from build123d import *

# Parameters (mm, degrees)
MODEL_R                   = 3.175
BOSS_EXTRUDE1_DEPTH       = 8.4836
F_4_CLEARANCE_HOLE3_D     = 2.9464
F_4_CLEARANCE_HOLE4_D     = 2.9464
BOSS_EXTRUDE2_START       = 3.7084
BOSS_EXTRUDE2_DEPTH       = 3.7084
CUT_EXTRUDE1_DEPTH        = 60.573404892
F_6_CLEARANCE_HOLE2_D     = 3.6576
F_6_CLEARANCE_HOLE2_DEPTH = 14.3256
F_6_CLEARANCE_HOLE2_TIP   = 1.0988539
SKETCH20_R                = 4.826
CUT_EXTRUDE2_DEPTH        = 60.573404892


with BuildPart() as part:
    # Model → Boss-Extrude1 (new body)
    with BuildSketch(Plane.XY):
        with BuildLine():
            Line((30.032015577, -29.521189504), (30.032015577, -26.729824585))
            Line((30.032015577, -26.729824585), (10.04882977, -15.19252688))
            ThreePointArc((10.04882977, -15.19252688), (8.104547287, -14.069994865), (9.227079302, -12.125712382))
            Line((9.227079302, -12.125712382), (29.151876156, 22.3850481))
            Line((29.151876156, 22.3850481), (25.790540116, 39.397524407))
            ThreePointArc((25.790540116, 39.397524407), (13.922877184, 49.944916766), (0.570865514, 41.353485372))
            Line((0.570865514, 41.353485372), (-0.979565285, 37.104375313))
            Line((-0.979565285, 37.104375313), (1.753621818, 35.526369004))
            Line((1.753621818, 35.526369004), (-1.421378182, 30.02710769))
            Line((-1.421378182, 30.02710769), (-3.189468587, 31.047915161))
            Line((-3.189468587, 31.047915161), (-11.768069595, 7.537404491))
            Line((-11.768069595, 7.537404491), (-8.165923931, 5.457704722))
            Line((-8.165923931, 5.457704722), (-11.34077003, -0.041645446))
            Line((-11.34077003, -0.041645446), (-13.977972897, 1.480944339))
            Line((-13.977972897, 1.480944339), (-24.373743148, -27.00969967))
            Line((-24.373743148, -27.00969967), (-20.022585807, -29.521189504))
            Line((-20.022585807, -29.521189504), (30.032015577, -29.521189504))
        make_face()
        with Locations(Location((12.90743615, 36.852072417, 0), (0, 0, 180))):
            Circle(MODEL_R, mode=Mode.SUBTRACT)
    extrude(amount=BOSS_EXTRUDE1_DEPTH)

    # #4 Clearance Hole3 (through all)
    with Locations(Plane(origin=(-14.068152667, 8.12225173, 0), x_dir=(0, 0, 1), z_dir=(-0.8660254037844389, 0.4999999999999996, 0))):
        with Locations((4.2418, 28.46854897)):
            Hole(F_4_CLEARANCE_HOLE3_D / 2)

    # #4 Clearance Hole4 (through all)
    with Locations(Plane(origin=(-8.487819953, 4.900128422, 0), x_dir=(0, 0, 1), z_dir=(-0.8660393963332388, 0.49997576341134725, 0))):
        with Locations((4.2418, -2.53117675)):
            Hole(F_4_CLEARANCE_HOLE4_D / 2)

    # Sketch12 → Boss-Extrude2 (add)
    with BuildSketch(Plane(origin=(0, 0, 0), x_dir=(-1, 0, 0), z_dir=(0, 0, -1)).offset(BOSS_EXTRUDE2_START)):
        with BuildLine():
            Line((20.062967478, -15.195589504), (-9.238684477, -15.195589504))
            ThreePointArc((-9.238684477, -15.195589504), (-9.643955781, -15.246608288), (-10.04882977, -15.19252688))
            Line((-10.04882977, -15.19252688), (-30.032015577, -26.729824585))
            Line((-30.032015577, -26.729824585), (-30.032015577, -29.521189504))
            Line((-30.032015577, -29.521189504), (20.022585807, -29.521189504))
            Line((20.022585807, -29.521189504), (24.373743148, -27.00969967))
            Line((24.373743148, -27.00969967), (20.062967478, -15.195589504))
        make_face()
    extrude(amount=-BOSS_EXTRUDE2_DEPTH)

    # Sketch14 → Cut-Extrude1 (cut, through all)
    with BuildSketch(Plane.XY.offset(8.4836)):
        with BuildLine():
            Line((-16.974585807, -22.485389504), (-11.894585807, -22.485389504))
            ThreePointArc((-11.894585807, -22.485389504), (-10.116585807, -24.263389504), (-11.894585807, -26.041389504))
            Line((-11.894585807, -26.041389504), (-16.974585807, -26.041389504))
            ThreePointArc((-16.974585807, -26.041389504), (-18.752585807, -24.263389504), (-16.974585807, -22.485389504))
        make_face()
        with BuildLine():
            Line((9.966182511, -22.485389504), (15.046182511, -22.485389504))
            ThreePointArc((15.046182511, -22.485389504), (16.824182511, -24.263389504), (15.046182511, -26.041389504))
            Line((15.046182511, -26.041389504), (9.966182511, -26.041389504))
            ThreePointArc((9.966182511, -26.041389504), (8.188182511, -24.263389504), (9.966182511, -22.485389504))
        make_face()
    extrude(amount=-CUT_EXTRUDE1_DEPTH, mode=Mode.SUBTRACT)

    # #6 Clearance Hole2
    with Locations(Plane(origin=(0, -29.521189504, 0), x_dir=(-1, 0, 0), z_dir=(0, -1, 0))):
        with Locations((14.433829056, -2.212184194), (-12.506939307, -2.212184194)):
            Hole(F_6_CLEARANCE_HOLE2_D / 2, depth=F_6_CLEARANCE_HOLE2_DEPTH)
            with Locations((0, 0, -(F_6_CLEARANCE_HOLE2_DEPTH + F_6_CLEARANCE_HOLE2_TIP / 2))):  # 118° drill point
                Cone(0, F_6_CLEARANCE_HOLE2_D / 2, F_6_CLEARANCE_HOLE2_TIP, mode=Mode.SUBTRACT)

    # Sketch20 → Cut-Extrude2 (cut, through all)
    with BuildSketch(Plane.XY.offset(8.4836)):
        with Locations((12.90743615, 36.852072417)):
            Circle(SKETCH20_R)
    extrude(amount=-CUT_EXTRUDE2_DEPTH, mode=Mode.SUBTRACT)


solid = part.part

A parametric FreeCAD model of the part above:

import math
import FreeCAD as App
import Part
import Sketcher
from FreeCAD import Vector
Q = App.Units.Quantity

doc = App.newDocument("Part")
body = doc.addObject("PartDesign::Body", "Body")

# Sketch on XY plane
sketch1 = body.newObject("Sketcher::SketchObject", "Sketch")
sketch1.AttachmentSupport = (doc.getObject("XY_Plane"), [""])
sketch1.MapMode = "FlatFace"
sketch1.addGeometry(Part.LineSegment(Vector(30.032016, -29.52119, 0), Vector(30.032016, -26.729825, 0)), False)
sketch1.addGeometry(Part.LineSegment(Vector(30.032016, -26.729825, 0), Vector(10.04883, -15.192527, 0)), False)
sketch1.addGeometry(Part.ArcOfCircle(Part.Circle(Vector(9.637955, -13.65912, 0), Vector(0, 0, 1), 1.5875), math.radians(105), math.radians(285)), False)
sketch1.addGeometry(Part.LineSegment(Vector(9.227079, -12.125712, 0), Vector(29.151876, 22.385048, 0)), False)
sketch1.addGeometry(Part.LineSegment(Vector(29.151876, 22.385048, 0), Vector(25.79054, 39.397524, 0)), False)
sketch1.addGeometry(Part.ArcOfCircle(Part.Circle(Vector(12.907436, 36.852072, 0), Vector(0, 0, 1), 13.132163), math.radians(11.176583), math.radians(159.953801)), False)
sketch1.addGeometry(Part.LineSegment(Vector(0.570866, 41.353485, 0), Vector(-0.979565, 37.104375, 0)), False)
sketch1.addGeometry(Part.LineSegment(Vector(-0.979565, 37.104375, 0), Vector(1.753622, 35.526369, 0)), False)
sketch1.addGeometry(Part.LineSegment(Vector(1.753622, 35.526369, 0), Vector(-1.421378, 30.027108, 0)), False)
sketch1.addGeometry(Part.LineSegment(Vector(-1.421378, 30.027108, 0), Vector(-3.189469, 31.047915, 0)), False)
sketch1.addGeometry(Part.LineSegment(Vector(-3.189469, 31.047915, 0), Vector(-11.76807, 7.537404, 0)), False)
sketch1.addGeometry(Part.LineSegment(Vector(-11.76807, 7.537404, 0), Vector(-8.165924, 5.457705, 0)), False)
sketch1.addGeometry(Part.LineSegment(Vector(-8.165924, 5.457705, 0), Vector(-11.34077, -0.041645, 0)), False)
sketch1.addGeometry(Part.LineSegment(Vector(-11.34077, -0.041645, 0), Vector(-13.977973, 1.480944, 0)), False)
sketch1.addGeometry(Part.LineSegment(Vector(-13.977973, 1.480944, 0), Vector(-24.373743, -27.0097, 0)), False)
sketch1.addGeometry(Part.LineSegment(Vector(-24.373743, -27.0097, 0), Vector(-20.022586, -29.52119, 0)), False)
sketch1.addGeometry(Part.LineSegment(Vector(-20.022586, -29.52119, 0), Vector(30.032016, -29.52119, 0)), False)
sketch1.addGeometry(Part.Circle(Vector(12.907436, 36.852072, 0), Vector(0, 0, 1), 3.175), False)
sketch1.addConstraint(Sketcher.Constraint("Coincident", 0, 2, 1, 1))
sketch1.addConstraint(Sketcher.Constraint("Coincident", 1, 2, 2, 2))
sketch1.addConstraint(Sketcher.Constraint("Coincident", 2, 1, 3, 1))
sketch1.addConstraint(Sketcher.Constraint("Coincident", 3, 2, 4, 1))
sketch1.addConstraint(Sketcher.Constraint("Tangent", 4, 2, 5, 1))
sketch1.addConstraint(Sketcher.Constraint("Tangent", 5, 2, 6, 1))
sketch1.addConstraint(Sketcher.Constraint("Coincident", 6, 2, 7, 1))
sketch1.addConstraint(Sketcher.Constraint("Coincident", 7, 2, 8, 1))
sketch1.addConstraint(Sketcher.Constraint("Coincident", 8, 2, 9, 1))
sketch1.addConstraint(Sketcher.Constraint("Coincident", 9, 2, 10, 1))
sketch1.addConstraint(Sketcher.Constraint("Coincident", 10, 2, 11, 1))
sketch1.addConstraint(Sketcher.Constraint("Coincident", 11, 2, 12, 1))
sketch1.addConstraint(Sketcher.Constraint("Coincident", 12, 2, 13, 1))
sketch1.addConstraint(Sketcher.Constraint("Coincident", 13, 2, 14, 1))
sketch1.addConstraint(Sketcher.Constraint("Coincident", 14, 2, 15, 1))
sketch1.addConstraint(Sketcher.Constraint("Coincident", 15, 2, 16, 1))
sketch1.addConstraint(Sketcher.Constraint("Coincident", 16, 2, 0, 1))
sketch1.addConstraint(Sketcher.Constraint("Vertical", 0))
sketch1.addConstraint(Sketcher.Constraint("Horizontal", 16))
sketch1.addConstraint(Sketcher.Constraint("Coincident", 17, 3, 5, 3))
sketch1.addConstraint(Sketcher.Constraint("Perpendicular", 1, 3))
sketch1.addConstraint(Sketcher.Constraint("Perpendicular", 3, 7))
sketch1.addConstraint(Sketcher.Constraint("Perpendicular", 7, 8))
sketch1.addConstraint(Sketcher.Constraint("Perpendicular", 8, 9))
sketch1.addConstraint(Sketcher.Constraint("Parallel", 6, 10))
sketch1.addConstraint(Sketcher.Constraint("Parallel", 9, 11))
sketch1.addConstraint(Sketcher.Constraint("Parallel", 11, 13))
sketch1.addConstraint(Sketcher.Constraint("Parallel", 10, 14))
sketch1.addConstraint(Sketcher.Constraint("Equal", 8, 12))
sketch1.addConstraint(Sketcher.Constraint("Diameter", 17, Q("0.25 in")))
sketch1.addConstraint(Sketcher.Constraint("Angle", 1, Q("150 deg")))
sketch1.addConstraint(Sketcher.Constraint("Radius", 2, Q("0.0625 in")))
sketch1.addConstraint(Sketcher.Constraint("Distance", 8, Q("0.25 in")))
sketch1.addConstraint(Sketcher.Constraint("DistanceY", 1, 2, 5, 3, Q("2.049 in")))
sketch1.addConstraint(Sketcher.Constraint("DistanceX", 16, 1, 16, 2, 50.054601))
sketch1.addConstraint(Sketcher.Constraint("Radius", 5, 13.132163))
sketch1.addConstraint(Sketcher.Constraint("Distance", 11, 4.1594))
sketch1.addConstraint(Sketcher.Constraint("DistanceY", 14, 2, -1, 1, 27.0097))
sketch1.addConstraint(Sketcher.Constraint("DistanceX", 6, 2, 5, 3, 13.887001))
sketch1.addConstraint(Sketcher.Constraint("DistanceX", 10, 2, 9, 2, 8.578601))
sketch1.addConstraint(Sketcher.Constraint("DistanceX", 10, 2, 12, 2, 0.4273))
sketch1.addConstraint(Sketcher.Constraint("DistanceX", 12, 2, 1, 2, 21.3896))
sketch1.addConstraint(Sketcher.Constraint("Distance", 13, 3.04518))
sketch1.addConstraint(Sketcher.Constraint("Distance", 14, 30.328021))
sketch1.addConstraint(Sketcher.Constraint("DistanceY", 0, 1, 0, 2, 2.791365))
sketch1.addConstraint(Sketcher.Constraint("DistanceY", 2, 3, -1, 1, 13.65912))
sketch1.addConstraint(Sketcher.Constraint("DistanceX", -1, 1, 1, 2, 10.04883))
sketch1.addConstraint(Sketcher.Constraint("DistanceX", -1, 1, 2, 1, 9.227079))
sketch1.addConstraint(Sketcher.Constraint("DistanceY", -1, 1, 3, 2, 22.385048))
sketch1.addConstraint(Sketcher.Constraint("DistanceX", -1, 1, 4, 2, 25.79054))
sketch1.addConstraint(Sketcher.Constraint("DistanceX", -1, 1, 7, 2, 1.753622))
sketch1.addConstraint(Sketcher.Constraint("DistanceY", -1, 1, 7, 2, 35.526369))
sketch1.addConstraint(Sketcher.Constraint("DistanceY", 15, 2, -1, 1, 29.52119))
pad1 = body.newObject("PartDesign::Pad", "Pad")
pad1.Profile = sketch1
pad1.Length = Q("0.334 in")

# Sketch on an angled plane
sketch2 = body.newObject("Sketcher::SketchObject", "Sketch001")
sketch2.Placement = App.Placement(Vector(-14.068153, 8.122252, 0), App.Rotation(Vector(0, 0, 1), Vector(0.5, 0.866025404, 0), Vector(-0.866025404, 0.5, 0), "ZXY"))
sketch2.addGeometry(Part.Circle(Vector(4.2418, 28.468549, 0), Vector(0, 0, 1), 1.4732), False)
sketch2.addConstraint(Sketcher.Constraint("Diameter", 0, Q("0.116 in")))
sketch2.addConstraint(Sketcher.Constraint("DistanceX", -1, 1, 0, 3, Q("0.167 in")))
sketch2.addConstraint(Sketcher.Constraint("DistanceY", -1, 1, 0, 3, 28.468549))
doc.recompute()
hole = body.newObject("PartDesign::Hole", "Hole")
hole.Profile = sketch2
hole.ThreadType = "None"
hole.Diameter = Q("0.116 in")
hole.DepthType = "ThroughAll"

# Sketch on an angled plane
sketch3 = body.newObject("Sketcher::SketchObject", "Sketch002")
sketch3.Placement = App.Placement(Vector(-8.48782, 4.900128, 0), App.Rotation(Vector(0, 0, 1), Vector(0.499975763, 0.866039396, 0), Vector(-0.866039396, 0.499975763, 0), "ZXY"))
sketch3.addGeometry(Part.Circle(Vector(4.2418, -2.531177, 0), Vector(0, 0, 1), 1.4732), False)
sketch3.addConstraint(Sketcher.Constraint("Diameter", 0, Q("0.116 in")))
sketch3.addConstraint(Sketcher.Constraint("DistanceX", -1, 1, 0, 3, Q("0.167 in")))
sketch3.addConstraint(Sketcher.Constraint("DistanceY", 0, 3, -1, 1, 2.531177))
doc.recompute()
hole2 = body.newObject("PartDesign::Hole", "Hole001")
hole2.Profile = sketch3
hole2.ThreadType = "None"
hole2.Diameter = Q("0.116 in")
hole2.DepthType = "ThroughAll"

# Sketch on XY plane
sketch4 = body.newObject("Sketcher::SketchObject", "Sketch003")
sketch4.AttachmentSupport = (doc.getObject("XY_Plane"), [""])
sketch4.MapMode = "FlatFace"
sketch4.AttachmentOffset = App.Placement(Vector(0, 0, -0.146 * 25.4), App.Rotation())
sketch4.addGeometry(Part.LineSegment(Vector(-20.062967, -15.19559, 0), Vector(9.238684, -15.19559, 0)), False)
sketch4.addGeometry(Part.ArcOfCircle(Part.Circle(Vector(9.637955, -13.65912, 0), Vector(0, 0, 1), 1.5875), math.radians(-104.566807), math.radians(-75)), False)
sketch4.addGeometry(Part.LineSegment(Vector(10.04883, -15.192527, 0), Vector(30.032016, -26.729825, 0)), False)
sketch4.addGeometry(Part.LineSegment(Vector(30.032016, -26.729825, 0), Vector(30.032016, -29.52119, 0)), False)
sketch4.addGeometry(Part.LineSegment(Vector(30.032016, -29.52119, 0), Vector(-20.022586, -29.52119, 0)), False)
sketch4.addGeometry(Part.LineSegment(Vector(-20.022586, -29.52119, 0), Vector(-24.373743, -27.0097, 0)), False)
sketch4.addGeometry(Part.LineSegment(Vector(-24.373743, -27.0097, 0), Vector(-20.062967, -15.19559, 0)), False)
sketch4.addConstraint(Sketcher.Constraint("Coincident", 0, 2, 1, 1))
sketch4.addConstraint(Sketcher.Constraint("Coincident", 1, 2, 2, 1))
sketch4.addConstraint(Sketcher.Constraint("Coincident", 2, 2, 3, 1))
sketch4.addConstraint(Sketcher.Constraint("Coincident", 3, 2, 4, 1))
sketch4.addConstraint(Sketcher.Constraint("Coincident", 4, 2, 5, 1))
sketch4.addConstraint(Sketcher.Constraint("Coincident", 5, 2, 6, 1))
sketch4.addConstraint(Sketcher.Constraint("Coincident", 6, 2, 0, 1))
sketch4.addConstraint(Sketcher.Constraint("Horizontal", 0))
sketch4.addConstraint(Sketcher.Constraint("Vertical", 3))
sketch4.addConstraint(Sketcher.Constraint("Horizontal", 4))
sketch4.addConstraint(Sketcher.Constraint("Angle", 2, Q("-30 deg")))
sketch4.addConstraint(Sketcher.Constraint("Radius", 1, Q("0.0625 in")))
sketch4.addConstraint(Sketcher.Constraint("DistanceY", 3, 2, 0, 2, Q("0.564 in")))
sketch4.addConstraint(Sketcher.Constraint("DistanceX", 4, 2, 4, 1, 50.054601))
sketch4.addConstraint(Sketcher.Constraint("DistanceX", 0, 1, 0, 2, 29.301652))
sketch4.addConstraint(Sketcher.Constraint("DistanceY", 5, 2, -1, 1, 27.0097))
sketch4.addConstraint(Sketcher.Constraint("Distance", 6, 12.576008))
sketch4.addConstraint(Sketcher.Constraint("DistanceY", 3, 2, 3, 1, 2.791365))
sketch4.addConstraint(Sketcher.Constraint("DistanceY", 1, 3, -1, 1, 13.65912))
sketch4.addConstraint(Sketcher.Constraint("DistanceY", 0, 2, -1, 1, 15.19559))
sketch4.addConstraint(Sketcher.Constraint("DistanceX", -1, 1, 1, 2, 10.04883))
sketch4.addConstraint(Sketcher.Constraint("DistanceX", 0, 2, 2, 2, 20.793331))
pad2 = body.newObject("PartDesign::Pad", "Pad001")
pad2.Profile = sketch4
pad2.Length = Q("0.146 in")

# Sketch on XY plane
sketch5 = body.newObject("Sketcher::SketchObject", "Sketch004")
sketch5.AttachmentSupport = (doc.getObject("XY_Plane"), [""])
sketch5.MapMode = "FlatFace"
sketch5.AttachmentOffset = App.Placement(Vector(0, 0, 0.334 * 25.4), App.Rotation())
sketch5.addGeometry(Part.LineSegment(Vector(-11.894586, -22.48539, 0), Vector(-16.974586, -22.48539, 0)), False)
sketch5.addGeometry(Part.ArcOfCircle(Part.Circle(Vector(-16.974586, -24.26339, 0), Vector(0, 0, 1), 1.778), math.radians(90), math.radians(270)), False)
sketch5.addGeometry(Part.LineSegment(Vector(-16.974586, -26.04139, 0), Vector(-11.894586, -26.04139, 0)), False)
sketch5.addGeometry(Part.ArcOfCircle(Part.Circle(Vector(-11.894586, -24.26339, 0), Vector(0, 0, 1), 1.778), math.radians(-90), math.radians(90)), False)
sketch5.addGeometry(Part.LineSegment(Vector(15.046183, -22.48539, 0), Vector(9.966183, -22.48539, 0)), False)
sketch5.addGeometry(Part.ArcOfCircle(Part.Circle(Vector(9.966183, -24.26339, 0), Vector(0, 0, 1), 1.778), math.radians(90), math.radians(270)), False)
sketch5.addGeometry(Part.LineSegment(Vector(9.966183, -26.04139, 0), Vector(15.046183, -26.04139, 0)), False)
sketch5.addGeometry(Part.ArcOfCircle(Part.Circle(Vector(15.046183, -24.26339, 0), Vector(0, 0, 1), 1.778), math.radians(-90), math.radians(90)), False)
sketch5.addConstraint(Sketcher.Constraint("Tangent", 0, 2, 1, 1))
sketch5.addConstraint(Sketcher.Constraint("Tangent", 1, 2, 2, 1))
sketch5.addConstraint(Sketcher.Constraint("Tangent", 2, 2, 3, 1))
sketch5.addConstraint(Sketcher.Constraint("Tangent", 3, 2, 0, 1))
sketch5.addConstraint(Sketcher.Constraint("Tangent", 4, 2, 5, 1))
sketch5.addConstraint(Sketcher.Constraint("Tangent", 5, 2, 6, 1))
sketch5.addConstraint(Sketcher.Constraint("Tangent", 6, 2, 7, 1))
sketch5.addConstraint(Sketcher.Constraint("Tangent", 7, 2, 4, 1))
sketch5.addConstraint(Sketcher.Constraint("Horizontal", 0))
sketch5.addConstraint(Sketcher.Constraint("Horizontal", 2))
sketch5.addConstraint(Sketcher.Constraint("Horizontal", 4))
sketch5.addConstraint(Sketcher.Constraint("Horizontal", 6))
sketch5.addConstraint(Sketcher.Constraint("Equal", 3, 5))
sketch5.addConstraint(Sketcher.Constraint("Horizontal", 3, 3, 5, 3))
sketch5.addConstraint(Sketcher.Constraint("Equal", 2, 4))
sketch5.addConstraint(Sketcher.Constraint("Radius", 1, Q("0.07 in")))
sketch5.addConstraint(Sketcher.Constraint("DistanceX", 0, 2, 0, 1, Q("0.2 in")))
sketch5.addConstraint(Sketcher.Constraint("DistanceY", 1, 3, -1, 1, 24.26339))
sketch5.addConstraint(Sketcher.Constraint("DistanceX", 3, 3, 5, 3, 21.860768))
sketch5.addConstraint(Sketcher.Constraint("DistanceX", 1, 3, -1, 1, 16.974586))
pocket1 = body.newObject("PartDesign::Pocket", "Pocket")
pocket1.Profile = sketch5
pocket1.Type = "ThroughAll"

# Sketch on XZ plane
sketch6 = body.newObject("Sketcher::SketchObject", "Sketch005")
sketch6.AttachmentSupport = (doc.getObject("XZ_Plane"), [""])
sketch6.MapMode = "FlatFace"
sketch6.AttachmentOffset = App.Placement(Vector(0, 0, 29.52119), App.Rotation())
sketch6.addGeometry(Part.Circle(Vector(-14.433829, 2.212184, 0), Vector(0, 0, 1), 1.8288), False)
sketch6.addGeometry(Part.Circle(Vector(12.506939, 2.212184, 0), Vector(0, 0, 1), 1.8288), False)
sketch6.addConstraint(Sketcher.Constraint("Equal", 0, 1))
sketch6.addConstraint(Sketcher.Constraint("Horizontal", 0, 3, 1, 3))
sketch6.addConstraint(Sketcher.Constraint("Diameter", 0, Q("0.144 in")))
sketch6.addConstraint(Sketcher.Constraint("DistanceX", 0, 3, -1, 1, 14.433829))
sketch6.addConstraint(Sketcher.Constraint("DistanceX", -1, 1, 1, 3, 12.506939))
sketch6.addConstraint(Sketcher.Constraint("DistanceY", -1, 1, 0, 3, 2.212184))
doc.recompute()
hole3 = body.newObject("PartDesign::Hole", "Hole002")
hole3.Profile = sketch6
hole3.ThreadType = "None"
hole3.Diameter = Q("0.144 in")
hole3.DepthType = "Dimension"
hole3.Depth = Q("0.564 in")
hole3.DrillPoint = "Angled"
hole3.DrillPointAngle = 118

# Sketch on XY plane
sketch7 = body.newObject("Sketcher::SketchObject", "Sketch006")
sketch7.AttachmentSupport = (doc.getObject("XY_Plane"), [""])
sketch7.MapMode = "FlatFace"
sketch7.AttachmentOffset = App.Placement(Vector(0, 0, 0.334 * 25.4), App.Rotation())
sketch7.addGeometry(Part.Circle(Vector(12.907436, 36.852072, 0), Vector(0, 0, 1), 4.826), False)
sketch7.addConstraint(Sketcher.Constraint("Diameter", 0, Q("0.38 in")))
sketch7.addConstraint(Sketcher.Constraint("DistanceX", -1, 1, 0, 3, 12.907436))
sketch7.addConstraint(Sketcher.Constraint("DistanceY", -1, 1, 0, 3, 36.852072))
pocket2 = body.newObject("PartDesign::Pocket", "Pocket001")
pocket2.Profile = sketch7
pocket2.Type = "ThroughAll"

doc.recompute()
